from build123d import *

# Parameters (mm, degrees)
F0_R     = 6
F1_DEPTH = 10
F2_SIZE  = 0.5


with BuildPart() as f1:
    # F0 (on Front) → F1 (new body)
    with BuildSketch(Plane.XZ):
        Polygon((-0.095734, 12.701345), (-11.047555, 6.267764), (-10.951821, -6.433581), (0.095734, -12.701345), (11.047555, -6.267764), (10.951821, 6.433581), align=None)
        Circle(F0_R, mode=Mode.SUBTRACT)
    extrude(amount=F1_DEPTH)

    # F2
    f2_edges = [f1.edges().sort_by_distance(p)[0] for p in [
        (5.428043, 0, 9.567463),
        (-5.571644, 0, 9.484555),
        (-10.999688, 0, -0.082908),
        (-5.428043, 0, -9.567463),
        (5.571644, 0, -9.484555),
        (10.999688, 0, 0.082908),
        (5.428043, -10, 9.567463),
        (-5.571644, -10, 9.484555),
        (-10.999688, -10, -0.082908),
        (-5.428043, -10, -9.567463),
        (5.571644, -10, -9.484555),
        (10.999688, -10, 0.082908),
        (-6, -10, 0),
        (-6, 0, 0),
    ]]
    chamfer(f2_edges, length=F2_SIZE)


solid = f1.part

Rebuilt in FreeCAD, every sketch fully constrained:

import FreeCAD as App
import Part
import Sketcher


def edges_at(feature, points):
    """Names of the edges that pass closest to the given points."""
    edges = feature.Shape.Edges
    near = lambda p: min(range(len(edges)), key=lambda i: edges[i].distToShape(Part.Vertex(*p))[0])
    return sorted({f"Edge{near(p) + 1}" for p in points})

doc = App.newDocument("Part")
body = doc.addObject("PartDesign::Body", "Body")

# Sketch on XZ plane
sketch1 = body.newObject("Sketcher::SketchObject", "Sketch")
sketch1.AttachmentSupport = (doc.getObject("XZ_Plane"), [""])
sketch1.MapMode = "FlatFace"
sketch1.addGeometry([
    Part.LineSegment(App.Vector(0, 13, 0), App.Vector(-11, 6, 0)),  # 0
    Part.LineSegment(App.Vector(-11, 6, 0), App.Vector(-11, -6, 0)),  # 1
    Part.LineSegment(App.Vector(-11, -6, 0), App.Vector(0, -13, 0)),  # 2
    Part.LineSegment(App.Vector(0, -13, 0), App.Vector(11, -6, 0)),  # 3
    Part.LineSegment(App.Vector(11, -6, 0), App.Vector(11, 6, 0)),  # 4
    Part.LineSegment(App.Vector(11, 6, 0), App.Vector(0, 13, 0)),  # 5
    Part.Circle(App.Vector(0, 0, 0), App.Vector(0, 0, 1), 6),  # 6
], False)
sketch1.addConstraint([
    Sketcher.Constraint("Coincident", 0, 2, 1, 1),
    Sketcher.Constraint("Coincident", 1, 2, 2, 1),
    Sketcher.Constraint("Coincident", 2, 2, 3, 1),
    Sketcher.Constraint("Coincident", 3, 2, 4, 1),
    Sketcher.Constraint("Coincident", 4, 2, 5, 1),
    Sketcher.Constraint("Coincident", 5, 2, 0, 1),
    Sketcher.Constraint("Coincident", 6, 3, -1, 1),
    Sketcher.Constraint("Symmetric", 0, 2, 3, 2, -1, 1),
    Sketcher.Constraint("Symmetric", 1, 2, 4, 2, -1, 1),
    Sketcher.Constraint("Symmetric", 2, 2, 5, 2, -1, 1),
    Sketcher.Constraint("Equal", 0, 1),
    Sketcher.Constraint("Equal", 1, 2),
    Sketcher.Constraint("Diameter", 6, 12.0),
    Sketcher.Constraint("DistanceX", 1, 2, -1, 1, 10.951821),
    Sketcher.Constraint("DistanceY", 1, 2, -1, 1, 6.433581),
    Sketcher.Constraint("DistanceX", 0, 2, 2, 2, 11.143289),
    Sketcher.Constraint("DistanceY", 2, 2, 0, 2, 18.969109),
])
pad1 = body.newObject("PartDesign::Pad", "Pad")
pad1.Profile = sketch1
pad1.Length = 10
doc.recompute()

chamfer = body.newObject("PartDesign::Chamfer", "Chamfer")
chamfer.Base = (pad1, edges_at(pad1, [
    (5.428, 0, 9.567),
    (-5.572, 0, 9.485),
    (-11, 0, -0.083),
    (-5.428, 0, -9.567),
    (5.572, 0, -9.485),
    (11, 0, 0.083),
    (5.428, -10, 9.567),
    (-5.572, -10, 9.485),
    (-11, -10, -0.083),
    (-5.428, -10, -9.567),
    (5.572, -10, -9.485),
    (11, -10, 0.083),
    (-6, -10, 0),
    (-6, 0, 0),
]))
chamfer.Size = 0.5

doc.recompute()
